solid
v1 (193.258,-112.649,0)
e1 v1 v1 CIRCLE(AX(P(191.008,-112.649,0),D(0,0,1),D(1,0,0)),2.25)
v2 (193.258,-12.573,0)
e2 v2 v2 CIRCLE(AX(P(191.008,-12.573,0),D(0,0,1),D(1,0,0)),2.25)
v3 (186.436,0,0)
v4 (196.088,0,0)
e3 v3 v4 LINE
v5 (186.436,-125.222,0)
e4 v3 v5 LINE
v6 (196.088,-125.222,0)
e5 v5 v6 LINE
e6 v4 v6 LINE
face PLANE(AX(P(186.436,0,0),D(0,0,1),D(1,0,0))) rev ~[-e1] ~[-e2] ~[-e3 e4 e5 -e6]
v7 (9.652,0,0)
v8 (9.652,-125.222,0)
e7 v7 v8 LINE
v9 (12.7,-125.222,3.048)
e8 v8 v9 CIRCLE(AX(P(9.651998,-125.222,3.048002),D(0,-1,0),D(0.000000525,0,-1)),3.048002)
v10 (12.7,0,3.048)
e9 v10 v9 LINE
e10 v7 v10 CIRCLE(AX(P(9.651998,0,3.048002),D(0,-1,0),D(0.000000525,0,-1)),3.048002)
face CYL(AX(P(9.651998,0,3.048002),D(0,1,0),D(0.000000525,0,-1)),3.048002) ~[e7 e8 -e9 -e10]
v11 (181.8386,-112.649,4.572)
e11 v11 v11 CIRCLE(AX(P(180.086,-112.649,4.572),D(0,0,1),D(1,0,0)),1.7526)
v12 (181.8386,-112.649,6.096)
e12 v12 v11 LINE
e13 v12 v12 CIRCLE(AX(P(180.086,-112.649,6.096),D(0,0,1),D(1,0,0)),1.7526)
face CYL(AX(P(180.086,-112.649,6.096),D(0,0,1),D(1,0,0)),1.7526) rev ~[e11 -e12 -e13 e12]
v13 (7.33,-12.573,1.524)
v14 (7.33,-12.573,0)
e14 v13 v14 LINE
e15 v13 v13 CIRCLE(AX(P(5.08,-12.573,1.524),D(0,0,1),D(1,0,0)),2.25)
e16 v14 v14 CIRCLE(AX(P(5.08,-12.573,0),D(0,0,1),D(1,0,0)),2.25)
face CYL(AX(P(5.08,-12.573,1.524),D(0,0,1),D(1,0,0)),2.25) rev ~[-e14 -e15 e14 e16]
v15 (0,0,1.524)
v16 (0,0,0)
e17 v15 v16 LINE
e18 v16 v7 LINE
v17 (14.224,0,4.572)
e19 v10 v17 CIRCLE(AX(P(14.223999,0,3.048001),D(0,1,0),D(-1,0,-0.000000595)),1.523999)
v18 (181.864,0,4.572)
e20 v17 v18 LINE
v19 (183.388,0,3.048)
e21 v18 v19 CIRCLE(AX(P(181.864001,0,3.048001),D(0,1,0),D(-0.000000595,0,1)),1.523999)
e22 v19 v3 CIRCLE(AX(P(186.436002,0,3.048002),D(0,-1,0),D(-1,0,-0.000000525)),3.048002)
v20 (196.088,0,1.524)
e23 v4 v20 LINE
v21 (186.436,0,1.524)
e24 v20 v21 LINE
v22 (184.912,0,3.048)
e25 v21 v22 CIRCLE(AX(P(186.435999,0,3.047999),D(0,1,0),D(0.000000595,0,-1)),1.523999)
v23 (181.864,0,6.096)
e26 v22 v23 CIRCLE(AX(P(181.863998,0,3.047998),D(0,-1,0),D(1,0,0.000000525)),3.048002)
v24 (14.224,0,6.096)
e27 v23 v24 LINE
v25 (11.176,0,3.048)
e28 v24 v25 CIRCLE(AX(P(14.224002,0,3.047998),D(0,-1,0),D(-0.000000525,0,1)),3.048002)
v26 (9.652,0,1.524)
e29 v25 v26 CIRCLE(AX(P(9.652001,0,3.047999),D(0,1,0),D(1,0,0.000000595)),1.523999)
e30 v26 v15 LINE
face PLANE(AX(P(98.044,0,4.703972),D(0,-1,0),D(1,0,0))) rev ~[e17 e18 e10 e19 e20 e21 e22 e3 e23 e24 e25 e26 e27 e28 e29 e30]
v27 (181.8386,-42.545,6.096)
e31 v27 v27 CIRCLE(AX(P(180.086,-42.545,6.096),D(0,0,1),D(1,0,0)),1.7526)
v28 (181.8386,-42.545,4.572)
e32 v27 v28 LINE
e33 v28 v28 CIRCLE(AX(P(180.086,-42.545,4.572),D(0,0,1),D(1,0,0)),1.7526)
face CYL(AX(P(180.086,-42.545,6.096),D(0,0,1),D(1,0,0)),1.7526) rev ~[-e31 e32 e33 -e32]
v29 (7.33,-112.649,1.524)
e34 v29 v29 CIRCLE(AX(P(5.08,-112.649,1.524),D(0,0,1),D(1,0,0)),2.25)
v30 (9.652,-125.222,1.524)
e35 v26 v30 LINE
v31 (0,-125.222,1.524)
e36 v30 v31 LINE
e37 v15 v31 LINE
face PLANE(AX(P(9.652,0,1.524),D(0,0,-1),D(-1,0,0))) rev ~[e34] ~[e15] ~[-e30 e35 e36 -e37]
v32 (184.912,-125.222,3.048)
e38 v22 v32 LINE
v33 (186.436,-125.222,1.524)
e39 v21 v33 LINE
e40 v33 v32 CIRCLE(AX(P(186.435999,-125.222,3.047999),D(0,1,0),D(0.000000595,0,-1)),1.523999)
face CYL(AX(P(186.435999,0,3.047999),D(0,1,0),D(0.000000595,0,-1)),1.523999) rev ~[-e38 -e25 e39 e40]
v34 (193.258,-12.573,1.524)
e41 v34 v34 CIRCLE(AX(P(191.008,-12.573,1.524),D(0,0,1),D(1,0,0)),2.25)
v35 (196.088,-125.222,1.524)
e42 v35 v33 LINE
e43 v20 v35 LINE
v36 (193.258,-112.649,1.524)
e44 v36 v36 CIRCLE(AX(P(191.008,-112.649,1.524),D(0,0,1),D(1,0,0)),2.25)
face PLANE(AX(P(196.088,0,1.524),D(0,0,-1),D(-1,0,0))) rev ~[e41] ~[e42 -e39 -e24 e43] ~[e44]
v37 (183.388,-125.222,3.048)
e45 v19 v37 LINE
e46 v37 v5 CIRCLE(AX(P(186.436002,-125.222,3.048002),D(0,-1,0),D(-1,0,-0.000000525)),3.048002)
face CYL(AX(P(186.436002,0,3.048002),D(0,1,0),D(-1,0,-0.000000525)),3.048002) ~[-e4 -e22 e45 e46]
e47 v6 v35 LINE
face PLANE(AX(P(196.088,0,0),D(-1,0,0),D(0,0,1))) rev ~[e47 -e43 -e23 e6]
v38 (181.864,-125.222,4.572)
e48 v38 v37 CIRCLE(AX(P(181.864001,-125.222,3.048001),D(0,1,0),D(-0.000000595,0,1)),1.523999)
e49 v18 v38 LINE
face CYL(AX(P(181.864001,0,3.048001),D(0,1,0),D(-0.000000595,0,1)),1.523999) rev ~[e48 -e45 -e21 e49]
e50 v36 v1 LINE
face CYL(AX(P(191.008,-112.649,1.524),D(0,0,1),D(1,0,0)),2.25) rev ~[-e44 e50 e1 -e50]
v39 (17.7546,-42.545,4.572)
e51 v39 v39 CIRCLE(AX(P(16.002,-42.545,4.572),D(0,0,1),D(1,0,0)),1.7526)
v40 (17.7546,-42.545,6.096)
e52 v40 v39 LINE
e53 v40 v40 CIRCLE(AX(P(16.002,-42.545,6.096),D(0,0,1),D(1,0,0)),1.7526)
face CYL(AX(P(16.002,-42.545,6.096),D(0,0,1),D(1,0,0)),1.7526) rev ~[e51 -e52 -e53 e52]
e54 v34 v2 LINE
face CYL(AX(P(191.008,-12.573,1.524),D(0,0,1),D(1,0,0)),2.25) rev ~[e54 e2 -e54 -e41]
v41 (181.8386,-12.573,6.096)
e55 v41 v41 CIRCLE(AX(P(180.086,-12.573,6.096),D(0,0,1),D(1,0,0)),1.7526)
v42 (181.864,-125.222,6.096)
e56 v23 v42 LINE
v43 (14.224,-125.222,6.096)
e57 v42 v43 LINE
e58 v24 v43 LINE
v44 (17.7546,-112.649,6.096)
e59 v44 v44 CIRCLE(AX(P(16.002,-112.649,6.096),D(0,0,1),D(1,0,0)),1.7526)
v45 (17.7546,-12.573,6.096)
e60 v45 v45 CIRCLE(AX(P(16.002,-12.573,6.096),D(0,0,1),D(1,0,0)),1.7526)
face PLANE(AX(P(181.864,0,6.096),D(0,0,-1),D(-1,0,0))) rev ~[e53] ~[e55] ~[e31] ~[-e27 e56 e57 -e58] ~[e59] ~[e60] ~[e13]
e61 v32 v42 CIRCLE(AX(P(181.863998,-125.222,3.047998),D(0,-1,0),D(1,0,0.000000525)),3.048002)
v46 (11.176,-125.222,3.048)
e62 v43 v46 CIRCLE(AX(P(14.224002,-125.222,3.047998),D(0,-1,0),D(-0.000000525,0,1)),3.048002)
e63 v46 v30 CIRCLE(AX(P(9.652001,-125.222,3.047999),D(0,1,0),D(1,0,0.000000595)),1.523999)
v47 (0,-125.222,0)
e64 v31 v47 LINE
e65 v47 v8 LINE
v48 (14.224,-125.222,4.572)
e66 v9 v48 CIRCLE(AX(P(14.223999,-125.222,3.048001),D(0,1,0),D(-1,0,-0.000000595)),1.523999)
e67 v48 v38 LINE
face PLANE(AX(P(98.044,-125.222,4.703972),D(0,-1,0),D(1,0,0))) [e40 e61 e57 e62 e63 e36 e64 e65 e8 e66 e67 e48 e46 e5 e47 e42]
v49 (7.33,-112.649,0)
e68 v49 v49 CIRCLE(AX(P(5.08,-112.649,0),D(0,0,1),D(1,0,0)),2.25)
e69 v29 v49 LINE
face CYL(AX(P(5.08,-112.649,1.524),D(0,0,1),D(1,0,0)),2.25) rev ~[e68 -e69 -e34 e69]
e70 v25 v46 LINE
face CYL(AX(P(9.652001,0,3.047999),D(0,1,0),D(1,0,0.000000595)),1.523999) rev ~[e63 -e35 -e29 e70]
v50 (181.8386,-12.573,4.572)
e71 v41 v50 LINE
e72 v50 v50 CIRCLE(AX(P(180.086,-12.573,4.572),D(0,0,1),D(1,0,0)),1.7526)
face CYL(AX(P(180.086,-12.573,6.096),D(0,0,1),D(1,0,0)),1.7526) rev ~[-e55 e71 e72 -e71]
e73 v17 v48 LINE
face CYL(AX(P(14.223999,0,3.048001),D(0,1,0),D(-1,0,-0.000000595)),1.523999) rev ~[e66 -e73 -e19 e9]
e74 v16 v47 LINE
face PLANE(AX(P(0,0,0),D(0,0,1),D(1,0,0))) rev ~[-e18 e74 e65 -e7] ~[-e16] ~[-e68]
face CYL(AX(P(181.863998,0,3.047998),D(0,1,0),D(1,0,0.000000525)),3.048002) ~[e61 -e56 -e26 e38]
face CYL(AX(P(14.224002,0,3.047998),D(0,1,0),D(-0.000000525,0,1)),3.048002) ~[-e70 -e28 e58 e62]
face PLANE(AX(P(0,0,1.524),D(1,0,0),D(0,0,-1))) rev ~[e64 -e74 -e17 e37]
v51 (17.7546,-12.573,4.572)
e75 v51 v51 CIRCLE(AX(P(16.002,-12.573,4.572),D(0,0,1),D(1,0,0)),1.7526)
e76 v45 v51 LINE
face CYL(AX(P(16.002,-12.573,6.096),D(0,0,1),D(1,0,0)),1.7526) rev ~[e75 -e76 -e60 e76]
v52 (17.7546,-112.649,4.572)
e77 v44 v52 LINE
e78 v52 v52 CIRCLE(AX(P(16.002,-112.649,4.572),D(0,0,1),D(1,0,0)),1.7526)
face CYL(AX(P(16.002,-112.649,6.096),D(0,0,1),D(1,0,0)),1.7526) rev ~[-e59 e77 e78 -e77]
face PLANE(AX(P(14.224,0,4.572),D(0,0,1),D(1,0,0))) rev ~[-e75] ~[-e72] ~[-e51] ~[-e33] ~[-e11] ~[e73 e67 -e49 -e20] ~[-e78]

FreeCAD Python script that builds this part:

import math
import FreeCAD as App
import Part
import Sketcher
from FreeCAD import Vector
Q = App.Units.Quantity

doc = App.newDocument("Part")
body = doc.addObject("PartDesign::Body", "Body")

sketch1 = body.newObject("Sketcher::SketchObject", "Sketch")
sketch1.AttachmentSupport = (doc.getObject("XZ_Plane"), [""])
sketch1.MapMode = "FlatFace"
sketch1.addGeometry(Part.LineSegment(Vector(0, 1.524, 0), Vector(0, 0, 0)), False)
sketch1.addGeometry(Part.LineSegment(Vector(0, 0, 0), Vector(9.652, 0, 0)), False)
sketch1.addGeometry(Part.ArcOfCircle(Part.Circle(Vector(9.651998, 3.048002, 0), Vector(0, 0, 1), 3.048002), math.radians(-89.99997), math.radians(-0.00003)), False)
sketch1.addGeometry(Part.ArcOfCircle(Part.Circle(Vector(14.223999, 3.048001, 0), Vector(0, 0, 1), 1.523999), math.radians(89.999966), math.radians(180.000034)), False)
sketch1.addGeometry(Part.LineSegment(Vector(14.224, 4.572, 0), Vector(181.864, 4.572, 0)), False)
sketch1.addGeometry(Part.ArcOfCircle(Part.Circle(Vector(181.864001, 3.048001, 0), Vector(0, 0, 1), 1.523999), math.radians(-0.000034), math.radians(90.000034)), False)
sketch1.addGeometry(Part.ArcOfCircle(Part.Circle(Vector(186.436002, 3.048002, 0), Vector(0, 0, 1), 3.048002), math.radians(-179.99997), math.radians(-90.00003)), False)
sketch1.addGeometry(Part.LineSegment(Vector(186.436, 0, 0), Vector(196.088, 0, 0)), False)
sketch1.addGeometry(Part.LineSegment(Vector(196.088, 0, 0), Vector(196.088, 1.524, 0)), False)
sketch1.addGeometry(Part.LineSegment(Vector(196.088, 1.524, 0), Vector(186.436, 1.524, 0)), False)
sketch1.addGeometry(Part.ArcOfCircle(Part.Circle(Vector(186.435999, 3.047999, 0), Vector(0, 0, 1), 1.523999), math.radians(179.999966), math.radians(270.000034)), False)
sketch1.addGeometry(Part.ArcOfCircle(Part.Circle(Vector(181.863998, 3.047998, 0), Vector(0, 0, 1), 3.048002), math.radians(0.00003), math.radians(89.99997)), False)
sketch1.addGeometry(Part.LineSegment(Vector(181.864, 6.096, 0), Vector(14.224, 6.096, 0)), False)
sketch1.addGeometry(Part.ArcOfCircle(Part.Circle(Vector(14.224002, 3.047998, 0), Vector(0, 0, 1), 3.048002), math.radians(90.00003), math.radians(179.99997)), False)
sketch1.addGeometry(Part.ArcOfCircle(Part.Circle(Vector(9.652001, 3.047999, 0), Vector(0, 0, 1), 1.523999), math.radians(-90.000034), math.radians(0.000034)), False)
sketch1.addGeometry(Part.LineSegment(Vector(9.652, 1.524, 0), Vector(0, 1.524, 0)), False)
sketch1.addConstraint(Sketcher.Constraint("Coincident", 0, 2, 1, 1))
sketch1.addConstraint(Sketcher.Constraint("Tangent", 1, 2, 2, 1))
sketch1.addConstraint(Sketcher.Constraint("Tangent", 2, 2, 3, 2))
sketch1.addConstraint(Sketcher.Constraint("Tangent", 3, 1, 4, 1))
sketch1.addConstraint(Sketcher.Constraint("Tangent", 4, 2, 5, 2))
sketch1.addConstraint(Sketcher.Constraint("Tangent", 5, 1, 6, 1))
sketch1.addConstraint(Sketcher.Constraint("Tangent", 6, 2, 7, 1))
sketch1.addConstraint(Sketcher.Constraint("Coincident", 7, 2, 8, 1))
sketch1.addConstraint(Sketcher.Constraint("Coincident", 8, 2, 9, 1))
sketch1.addConstraint(Sketcher.Constraint("Tangent", 9, 2, 10, 2))
sketch1.addConstraint(Sketcher.Constraint("Tangent", 10, 1, 11, 1))
sketch1.addConstraint(Sketcher.Constraint("Tangent", 11, 2, 12, 1))
sketch1.addConstraint(Sketcher.Constraint("Tangent", 12, 2, 13, 1))
sketch1.addConstraint(Sketcher.Constraint("Tangent", 13, 2, 14, 2))
sketch1.addConstraint(Sketcher.Constraint("Tangent", 14, 1, 15, 1))
sketch1.addConstraint(Sketcher.Constraint("Coincident", 15, 2, 0, 1))
sketch1.addConstraint(Sketcher.Constraint("Vertical", 0))
sketch1.addConstraint(Sketcher.Constraint("Horizontal", 1))
sketch1.addConstraint(Sketcher.Constraint("Horizontal", 4))
sketch1.addConstraint(Sketcher.Constraint("Horizontal", 7))
sketch1.addConstraint(Sketcher.Constraint("Vertical", 8))
sketch1.addConstraint(Sketcher.Constraint("Horizontal", 9))
sketch1.addConstraint(Sketcher.Constraint("Horizontal", 12))
sketch1.addConstraint(Sketcher.Constraint("Horizontal", 15))
sketch1.addConstraint(Sketcher.Constraint("Coincident", 0, 2, -1, 1))
sketch1.addConstraint(Sketcher.Constraint("Coincident", 10, 3, 6, 3))
sketch1.addConstraint(Sketcher.Constraint("Coincident", 11, 3, 5, 3))
sketch1.addConstraint(Sketcher.Constraint("Coincident", 13, 3, 3, 3))
sketch1.addConstraint(Sketcher.Constraint("Coincident", 14, 3, 2, 3))
sketch1.addConstraint(Sketcher.Constraint("Equal", 3, 5))
sketch1.addConstraint(Sketcher.Constraint("Equal", 2, 6))
sketch1.addConstraint(Sketcher.Constraint("Equal", 5, 10))
sketch1.addConstraint(Sketcher.Constraint("PointOnObject", 6, 2, -1))
sketch1.addConstraint(Sketcher.Constraint("Horizontal", 2, 3, 3, 3))
sketch1.addConstraint(Sketcher.Constraint("Equal", 1, 7))
sketch1.addConstraint(Sketcher.Constraint("Radius", 2, Q("0.1200001 in")))
sketch1.addConstraint(Sketcher.Constraint("Radius", 3, Q("0.06 in")))
sketch1.addConstraint(Sketcher.Constraint("DistanceX", 4, 1, 4, 2, Q("6.6 in")))
sketch1.addConstraint(Sketcher.Constraint("DistanceX", 1, 1, 1, 2, Q("0.38 in")))
pad1 = body.newObject("PartDesign::Pad", "Pad")
pad1.Profile = sketch1
pad1.Length = Q("4.93 in")

sketch2 = body.newObject("Sketcher::SketchObject", "Sketch001")
sketch2.AttachmentSupport = (doc.getObject("XY_Plane"), [""])
sketch2.MapMode = "FlatFace"
sketch2.AttachmentOffset = App.Placement(Vector(0, 0, 0.06 * 25.4), App.Rotation())
sketch2.addGeometry(Part.Circle(Vector(5.08, -112.649, 0), Vector(0, 0, 1), 2.25), False)
sketch2.addGeometry(Part.Circle(Vector(191.008, -112.649, 0), Vector(0, 0, 1), 2.25), False)
sketch2.addGeometry(Part.Circle(Vector(191.008, -12.573, 0), Vector(0, 0, 1), 2.25), False)
sketch2.addGeometry(Part.Circle(Vector(5.08, -12.573, 0), Vector(0, 0, 1), 2.25), False)
sketch2.addConstraint(Sketcher.Constraint("Equal", 0, 1))
sketch2.addConstraint(Sketcher.Constraint("Equal", 1, 2))
sketch2.addConstraint(Sketcher.Constraint("Equal", 2, 3))
sketch2.addConstraint(Sketcher.Constraint("Horizontal", 0, 3, 1, 3))
sketch2.addConstraint(Sketcher.Constraint("Horizontal", 2, 3, 3, 3))
sketch2.addConstraint(Sketcher.Constraint("Vertical", 1, 3, 2, 3))
sketch2.addConstraint(Sketcher.Constraint("Vertical", 0, 3, 3, 3))
sketch2.addConstraint(Sketcher.Constraint("DistanceX", -1, 1, 0, 3, Q("0.2 in")))
sketch2.addConstraint(Sketcher.Constraint("Diameter", 0, 4.5))
sketch2.addConstraint(Sketcher.Constraint("DistanceX", -1, 1, 1, 3, Q("7.52 in")))
sketch2.addConstraint(Sketcher.Constraint("DistanceY", 1, 3, 2, 3, Q("3.94 in")))
sketch2.addConstraint(Sketcher.Constraint("DistanceY", 0, 3, -1, 1, Q("4.435 in")))
pocket1 = body.newObject("PartDesign::Pocket", "Pocket")
pocket1.Profile = sketch2
pocket1.Type = "ThroughAll"

sketch3 = body.newObject("Sketcher::SketchObject", "Sketch002")
sketch3.AttachmentSupport = (doc.getObject("XY_Plane"), [""])
sketch3.MapMode = "FlatFace"
sketch3.AttachmentOffset = App.Placement(Vector(0, 0, 0.24 * 25.4), App.Rotation())
sketch3.addGeometry(Part.Circle(Vector(16.002, -12.573, 0), Vector(0, 0, 1), 1.7526), False)
sketch3.addGeometry(Part.Circle(Vector(16.002, -42.545, 0), Vector(0, 0, 1), 1.7526), False)
sketch3.addGeometry(Part.Circle(Vector(16.002, -112.649, 0), Vector(0, 0, 1), 1.7526), False)
sketch3.addGeometry(Part.Circle(Vector(180.086, -112.649, 0), Vector(0, 0, 1), 1.7526), False)
sketch3.addGeometry(Part.Circle(Vector(180.086, -42.545, 0), Vector(0, 0, 1), 1.7526), False)
sketch3.addGeometry(Part.Circle(Vector(180.086, -12.573, 0), Vector(0, 0, 1), 1.7526), False)
sketch3.addConstraint(Sketcher.Constraint("Equal", 0, 1))
sketch3.addConstraint(Sketcher.Constraint("Equal", 1, 2))
sketch3.addConstraint(Sketcher.Constraint("Equal", 2, 3))
sketch3.addConstraint(Sketcher.Constraint("Equal", 3, 4))
sketch3.addConstraint(Sketcher.Constraint("Equal", 4, 5))
sketch3.addConstraint(Sketcher.Constraint("Horizontal", 2, 3, 3, 3))
sketch3.addConstraint(Sketcher.Constraint("Horizontal", 1, 3, 4, 3))
sketch3.addConstraint(Sketcher.Constraint("Horizontal", 0, 3, 5, 3))
sketch3.addConstraint(Sketcher.Constraint("Vertical", 0, 3, 1, 3))
sketch3.addConstraint(Sketcher.Constraint("Vertical", 1, 3, 2, 3))
sketch3.addConstraint(Sketcher.Constraint("Vertical", 3, 3, 4, 3))
sketch3.addConstraint(Sketcher.Constraint("Vertical", 4, 3, 5, 3))
sketch3.addConstraint(Sketcher.Constraint("Diameter", 0, Q("0.138 in")))
sketch3.addConstraint(Sketcher.Constraint("DistanceX", -1, 1, 0, 3, Q("0.63 in")))
sketch3.addConstraint(Sketcher.Constraint("DistanceX", -1, 1, 3, 3, Q("7.09 in")))
sketch3.addConstraint(Sketcher.Constraint("DistanceY", 1, 3, 0, 3, Q("1.18 in")))
sketch3.addConstraint(Sketcher.Constraint("DistanceY", 2, 3, 1, 3, Q("2.76 in")))
sketch3.addConstraint(Sketcher.Constraint("DistanceY", 0, 3, -1, 1, Q("0.495 in")))
pocket2 = body.newObject("PartDesign::Pocket", "Pocket001")
pocket2.Profile = sketch3
pocket2.Length = Q("1 in")

doc.recompute()
